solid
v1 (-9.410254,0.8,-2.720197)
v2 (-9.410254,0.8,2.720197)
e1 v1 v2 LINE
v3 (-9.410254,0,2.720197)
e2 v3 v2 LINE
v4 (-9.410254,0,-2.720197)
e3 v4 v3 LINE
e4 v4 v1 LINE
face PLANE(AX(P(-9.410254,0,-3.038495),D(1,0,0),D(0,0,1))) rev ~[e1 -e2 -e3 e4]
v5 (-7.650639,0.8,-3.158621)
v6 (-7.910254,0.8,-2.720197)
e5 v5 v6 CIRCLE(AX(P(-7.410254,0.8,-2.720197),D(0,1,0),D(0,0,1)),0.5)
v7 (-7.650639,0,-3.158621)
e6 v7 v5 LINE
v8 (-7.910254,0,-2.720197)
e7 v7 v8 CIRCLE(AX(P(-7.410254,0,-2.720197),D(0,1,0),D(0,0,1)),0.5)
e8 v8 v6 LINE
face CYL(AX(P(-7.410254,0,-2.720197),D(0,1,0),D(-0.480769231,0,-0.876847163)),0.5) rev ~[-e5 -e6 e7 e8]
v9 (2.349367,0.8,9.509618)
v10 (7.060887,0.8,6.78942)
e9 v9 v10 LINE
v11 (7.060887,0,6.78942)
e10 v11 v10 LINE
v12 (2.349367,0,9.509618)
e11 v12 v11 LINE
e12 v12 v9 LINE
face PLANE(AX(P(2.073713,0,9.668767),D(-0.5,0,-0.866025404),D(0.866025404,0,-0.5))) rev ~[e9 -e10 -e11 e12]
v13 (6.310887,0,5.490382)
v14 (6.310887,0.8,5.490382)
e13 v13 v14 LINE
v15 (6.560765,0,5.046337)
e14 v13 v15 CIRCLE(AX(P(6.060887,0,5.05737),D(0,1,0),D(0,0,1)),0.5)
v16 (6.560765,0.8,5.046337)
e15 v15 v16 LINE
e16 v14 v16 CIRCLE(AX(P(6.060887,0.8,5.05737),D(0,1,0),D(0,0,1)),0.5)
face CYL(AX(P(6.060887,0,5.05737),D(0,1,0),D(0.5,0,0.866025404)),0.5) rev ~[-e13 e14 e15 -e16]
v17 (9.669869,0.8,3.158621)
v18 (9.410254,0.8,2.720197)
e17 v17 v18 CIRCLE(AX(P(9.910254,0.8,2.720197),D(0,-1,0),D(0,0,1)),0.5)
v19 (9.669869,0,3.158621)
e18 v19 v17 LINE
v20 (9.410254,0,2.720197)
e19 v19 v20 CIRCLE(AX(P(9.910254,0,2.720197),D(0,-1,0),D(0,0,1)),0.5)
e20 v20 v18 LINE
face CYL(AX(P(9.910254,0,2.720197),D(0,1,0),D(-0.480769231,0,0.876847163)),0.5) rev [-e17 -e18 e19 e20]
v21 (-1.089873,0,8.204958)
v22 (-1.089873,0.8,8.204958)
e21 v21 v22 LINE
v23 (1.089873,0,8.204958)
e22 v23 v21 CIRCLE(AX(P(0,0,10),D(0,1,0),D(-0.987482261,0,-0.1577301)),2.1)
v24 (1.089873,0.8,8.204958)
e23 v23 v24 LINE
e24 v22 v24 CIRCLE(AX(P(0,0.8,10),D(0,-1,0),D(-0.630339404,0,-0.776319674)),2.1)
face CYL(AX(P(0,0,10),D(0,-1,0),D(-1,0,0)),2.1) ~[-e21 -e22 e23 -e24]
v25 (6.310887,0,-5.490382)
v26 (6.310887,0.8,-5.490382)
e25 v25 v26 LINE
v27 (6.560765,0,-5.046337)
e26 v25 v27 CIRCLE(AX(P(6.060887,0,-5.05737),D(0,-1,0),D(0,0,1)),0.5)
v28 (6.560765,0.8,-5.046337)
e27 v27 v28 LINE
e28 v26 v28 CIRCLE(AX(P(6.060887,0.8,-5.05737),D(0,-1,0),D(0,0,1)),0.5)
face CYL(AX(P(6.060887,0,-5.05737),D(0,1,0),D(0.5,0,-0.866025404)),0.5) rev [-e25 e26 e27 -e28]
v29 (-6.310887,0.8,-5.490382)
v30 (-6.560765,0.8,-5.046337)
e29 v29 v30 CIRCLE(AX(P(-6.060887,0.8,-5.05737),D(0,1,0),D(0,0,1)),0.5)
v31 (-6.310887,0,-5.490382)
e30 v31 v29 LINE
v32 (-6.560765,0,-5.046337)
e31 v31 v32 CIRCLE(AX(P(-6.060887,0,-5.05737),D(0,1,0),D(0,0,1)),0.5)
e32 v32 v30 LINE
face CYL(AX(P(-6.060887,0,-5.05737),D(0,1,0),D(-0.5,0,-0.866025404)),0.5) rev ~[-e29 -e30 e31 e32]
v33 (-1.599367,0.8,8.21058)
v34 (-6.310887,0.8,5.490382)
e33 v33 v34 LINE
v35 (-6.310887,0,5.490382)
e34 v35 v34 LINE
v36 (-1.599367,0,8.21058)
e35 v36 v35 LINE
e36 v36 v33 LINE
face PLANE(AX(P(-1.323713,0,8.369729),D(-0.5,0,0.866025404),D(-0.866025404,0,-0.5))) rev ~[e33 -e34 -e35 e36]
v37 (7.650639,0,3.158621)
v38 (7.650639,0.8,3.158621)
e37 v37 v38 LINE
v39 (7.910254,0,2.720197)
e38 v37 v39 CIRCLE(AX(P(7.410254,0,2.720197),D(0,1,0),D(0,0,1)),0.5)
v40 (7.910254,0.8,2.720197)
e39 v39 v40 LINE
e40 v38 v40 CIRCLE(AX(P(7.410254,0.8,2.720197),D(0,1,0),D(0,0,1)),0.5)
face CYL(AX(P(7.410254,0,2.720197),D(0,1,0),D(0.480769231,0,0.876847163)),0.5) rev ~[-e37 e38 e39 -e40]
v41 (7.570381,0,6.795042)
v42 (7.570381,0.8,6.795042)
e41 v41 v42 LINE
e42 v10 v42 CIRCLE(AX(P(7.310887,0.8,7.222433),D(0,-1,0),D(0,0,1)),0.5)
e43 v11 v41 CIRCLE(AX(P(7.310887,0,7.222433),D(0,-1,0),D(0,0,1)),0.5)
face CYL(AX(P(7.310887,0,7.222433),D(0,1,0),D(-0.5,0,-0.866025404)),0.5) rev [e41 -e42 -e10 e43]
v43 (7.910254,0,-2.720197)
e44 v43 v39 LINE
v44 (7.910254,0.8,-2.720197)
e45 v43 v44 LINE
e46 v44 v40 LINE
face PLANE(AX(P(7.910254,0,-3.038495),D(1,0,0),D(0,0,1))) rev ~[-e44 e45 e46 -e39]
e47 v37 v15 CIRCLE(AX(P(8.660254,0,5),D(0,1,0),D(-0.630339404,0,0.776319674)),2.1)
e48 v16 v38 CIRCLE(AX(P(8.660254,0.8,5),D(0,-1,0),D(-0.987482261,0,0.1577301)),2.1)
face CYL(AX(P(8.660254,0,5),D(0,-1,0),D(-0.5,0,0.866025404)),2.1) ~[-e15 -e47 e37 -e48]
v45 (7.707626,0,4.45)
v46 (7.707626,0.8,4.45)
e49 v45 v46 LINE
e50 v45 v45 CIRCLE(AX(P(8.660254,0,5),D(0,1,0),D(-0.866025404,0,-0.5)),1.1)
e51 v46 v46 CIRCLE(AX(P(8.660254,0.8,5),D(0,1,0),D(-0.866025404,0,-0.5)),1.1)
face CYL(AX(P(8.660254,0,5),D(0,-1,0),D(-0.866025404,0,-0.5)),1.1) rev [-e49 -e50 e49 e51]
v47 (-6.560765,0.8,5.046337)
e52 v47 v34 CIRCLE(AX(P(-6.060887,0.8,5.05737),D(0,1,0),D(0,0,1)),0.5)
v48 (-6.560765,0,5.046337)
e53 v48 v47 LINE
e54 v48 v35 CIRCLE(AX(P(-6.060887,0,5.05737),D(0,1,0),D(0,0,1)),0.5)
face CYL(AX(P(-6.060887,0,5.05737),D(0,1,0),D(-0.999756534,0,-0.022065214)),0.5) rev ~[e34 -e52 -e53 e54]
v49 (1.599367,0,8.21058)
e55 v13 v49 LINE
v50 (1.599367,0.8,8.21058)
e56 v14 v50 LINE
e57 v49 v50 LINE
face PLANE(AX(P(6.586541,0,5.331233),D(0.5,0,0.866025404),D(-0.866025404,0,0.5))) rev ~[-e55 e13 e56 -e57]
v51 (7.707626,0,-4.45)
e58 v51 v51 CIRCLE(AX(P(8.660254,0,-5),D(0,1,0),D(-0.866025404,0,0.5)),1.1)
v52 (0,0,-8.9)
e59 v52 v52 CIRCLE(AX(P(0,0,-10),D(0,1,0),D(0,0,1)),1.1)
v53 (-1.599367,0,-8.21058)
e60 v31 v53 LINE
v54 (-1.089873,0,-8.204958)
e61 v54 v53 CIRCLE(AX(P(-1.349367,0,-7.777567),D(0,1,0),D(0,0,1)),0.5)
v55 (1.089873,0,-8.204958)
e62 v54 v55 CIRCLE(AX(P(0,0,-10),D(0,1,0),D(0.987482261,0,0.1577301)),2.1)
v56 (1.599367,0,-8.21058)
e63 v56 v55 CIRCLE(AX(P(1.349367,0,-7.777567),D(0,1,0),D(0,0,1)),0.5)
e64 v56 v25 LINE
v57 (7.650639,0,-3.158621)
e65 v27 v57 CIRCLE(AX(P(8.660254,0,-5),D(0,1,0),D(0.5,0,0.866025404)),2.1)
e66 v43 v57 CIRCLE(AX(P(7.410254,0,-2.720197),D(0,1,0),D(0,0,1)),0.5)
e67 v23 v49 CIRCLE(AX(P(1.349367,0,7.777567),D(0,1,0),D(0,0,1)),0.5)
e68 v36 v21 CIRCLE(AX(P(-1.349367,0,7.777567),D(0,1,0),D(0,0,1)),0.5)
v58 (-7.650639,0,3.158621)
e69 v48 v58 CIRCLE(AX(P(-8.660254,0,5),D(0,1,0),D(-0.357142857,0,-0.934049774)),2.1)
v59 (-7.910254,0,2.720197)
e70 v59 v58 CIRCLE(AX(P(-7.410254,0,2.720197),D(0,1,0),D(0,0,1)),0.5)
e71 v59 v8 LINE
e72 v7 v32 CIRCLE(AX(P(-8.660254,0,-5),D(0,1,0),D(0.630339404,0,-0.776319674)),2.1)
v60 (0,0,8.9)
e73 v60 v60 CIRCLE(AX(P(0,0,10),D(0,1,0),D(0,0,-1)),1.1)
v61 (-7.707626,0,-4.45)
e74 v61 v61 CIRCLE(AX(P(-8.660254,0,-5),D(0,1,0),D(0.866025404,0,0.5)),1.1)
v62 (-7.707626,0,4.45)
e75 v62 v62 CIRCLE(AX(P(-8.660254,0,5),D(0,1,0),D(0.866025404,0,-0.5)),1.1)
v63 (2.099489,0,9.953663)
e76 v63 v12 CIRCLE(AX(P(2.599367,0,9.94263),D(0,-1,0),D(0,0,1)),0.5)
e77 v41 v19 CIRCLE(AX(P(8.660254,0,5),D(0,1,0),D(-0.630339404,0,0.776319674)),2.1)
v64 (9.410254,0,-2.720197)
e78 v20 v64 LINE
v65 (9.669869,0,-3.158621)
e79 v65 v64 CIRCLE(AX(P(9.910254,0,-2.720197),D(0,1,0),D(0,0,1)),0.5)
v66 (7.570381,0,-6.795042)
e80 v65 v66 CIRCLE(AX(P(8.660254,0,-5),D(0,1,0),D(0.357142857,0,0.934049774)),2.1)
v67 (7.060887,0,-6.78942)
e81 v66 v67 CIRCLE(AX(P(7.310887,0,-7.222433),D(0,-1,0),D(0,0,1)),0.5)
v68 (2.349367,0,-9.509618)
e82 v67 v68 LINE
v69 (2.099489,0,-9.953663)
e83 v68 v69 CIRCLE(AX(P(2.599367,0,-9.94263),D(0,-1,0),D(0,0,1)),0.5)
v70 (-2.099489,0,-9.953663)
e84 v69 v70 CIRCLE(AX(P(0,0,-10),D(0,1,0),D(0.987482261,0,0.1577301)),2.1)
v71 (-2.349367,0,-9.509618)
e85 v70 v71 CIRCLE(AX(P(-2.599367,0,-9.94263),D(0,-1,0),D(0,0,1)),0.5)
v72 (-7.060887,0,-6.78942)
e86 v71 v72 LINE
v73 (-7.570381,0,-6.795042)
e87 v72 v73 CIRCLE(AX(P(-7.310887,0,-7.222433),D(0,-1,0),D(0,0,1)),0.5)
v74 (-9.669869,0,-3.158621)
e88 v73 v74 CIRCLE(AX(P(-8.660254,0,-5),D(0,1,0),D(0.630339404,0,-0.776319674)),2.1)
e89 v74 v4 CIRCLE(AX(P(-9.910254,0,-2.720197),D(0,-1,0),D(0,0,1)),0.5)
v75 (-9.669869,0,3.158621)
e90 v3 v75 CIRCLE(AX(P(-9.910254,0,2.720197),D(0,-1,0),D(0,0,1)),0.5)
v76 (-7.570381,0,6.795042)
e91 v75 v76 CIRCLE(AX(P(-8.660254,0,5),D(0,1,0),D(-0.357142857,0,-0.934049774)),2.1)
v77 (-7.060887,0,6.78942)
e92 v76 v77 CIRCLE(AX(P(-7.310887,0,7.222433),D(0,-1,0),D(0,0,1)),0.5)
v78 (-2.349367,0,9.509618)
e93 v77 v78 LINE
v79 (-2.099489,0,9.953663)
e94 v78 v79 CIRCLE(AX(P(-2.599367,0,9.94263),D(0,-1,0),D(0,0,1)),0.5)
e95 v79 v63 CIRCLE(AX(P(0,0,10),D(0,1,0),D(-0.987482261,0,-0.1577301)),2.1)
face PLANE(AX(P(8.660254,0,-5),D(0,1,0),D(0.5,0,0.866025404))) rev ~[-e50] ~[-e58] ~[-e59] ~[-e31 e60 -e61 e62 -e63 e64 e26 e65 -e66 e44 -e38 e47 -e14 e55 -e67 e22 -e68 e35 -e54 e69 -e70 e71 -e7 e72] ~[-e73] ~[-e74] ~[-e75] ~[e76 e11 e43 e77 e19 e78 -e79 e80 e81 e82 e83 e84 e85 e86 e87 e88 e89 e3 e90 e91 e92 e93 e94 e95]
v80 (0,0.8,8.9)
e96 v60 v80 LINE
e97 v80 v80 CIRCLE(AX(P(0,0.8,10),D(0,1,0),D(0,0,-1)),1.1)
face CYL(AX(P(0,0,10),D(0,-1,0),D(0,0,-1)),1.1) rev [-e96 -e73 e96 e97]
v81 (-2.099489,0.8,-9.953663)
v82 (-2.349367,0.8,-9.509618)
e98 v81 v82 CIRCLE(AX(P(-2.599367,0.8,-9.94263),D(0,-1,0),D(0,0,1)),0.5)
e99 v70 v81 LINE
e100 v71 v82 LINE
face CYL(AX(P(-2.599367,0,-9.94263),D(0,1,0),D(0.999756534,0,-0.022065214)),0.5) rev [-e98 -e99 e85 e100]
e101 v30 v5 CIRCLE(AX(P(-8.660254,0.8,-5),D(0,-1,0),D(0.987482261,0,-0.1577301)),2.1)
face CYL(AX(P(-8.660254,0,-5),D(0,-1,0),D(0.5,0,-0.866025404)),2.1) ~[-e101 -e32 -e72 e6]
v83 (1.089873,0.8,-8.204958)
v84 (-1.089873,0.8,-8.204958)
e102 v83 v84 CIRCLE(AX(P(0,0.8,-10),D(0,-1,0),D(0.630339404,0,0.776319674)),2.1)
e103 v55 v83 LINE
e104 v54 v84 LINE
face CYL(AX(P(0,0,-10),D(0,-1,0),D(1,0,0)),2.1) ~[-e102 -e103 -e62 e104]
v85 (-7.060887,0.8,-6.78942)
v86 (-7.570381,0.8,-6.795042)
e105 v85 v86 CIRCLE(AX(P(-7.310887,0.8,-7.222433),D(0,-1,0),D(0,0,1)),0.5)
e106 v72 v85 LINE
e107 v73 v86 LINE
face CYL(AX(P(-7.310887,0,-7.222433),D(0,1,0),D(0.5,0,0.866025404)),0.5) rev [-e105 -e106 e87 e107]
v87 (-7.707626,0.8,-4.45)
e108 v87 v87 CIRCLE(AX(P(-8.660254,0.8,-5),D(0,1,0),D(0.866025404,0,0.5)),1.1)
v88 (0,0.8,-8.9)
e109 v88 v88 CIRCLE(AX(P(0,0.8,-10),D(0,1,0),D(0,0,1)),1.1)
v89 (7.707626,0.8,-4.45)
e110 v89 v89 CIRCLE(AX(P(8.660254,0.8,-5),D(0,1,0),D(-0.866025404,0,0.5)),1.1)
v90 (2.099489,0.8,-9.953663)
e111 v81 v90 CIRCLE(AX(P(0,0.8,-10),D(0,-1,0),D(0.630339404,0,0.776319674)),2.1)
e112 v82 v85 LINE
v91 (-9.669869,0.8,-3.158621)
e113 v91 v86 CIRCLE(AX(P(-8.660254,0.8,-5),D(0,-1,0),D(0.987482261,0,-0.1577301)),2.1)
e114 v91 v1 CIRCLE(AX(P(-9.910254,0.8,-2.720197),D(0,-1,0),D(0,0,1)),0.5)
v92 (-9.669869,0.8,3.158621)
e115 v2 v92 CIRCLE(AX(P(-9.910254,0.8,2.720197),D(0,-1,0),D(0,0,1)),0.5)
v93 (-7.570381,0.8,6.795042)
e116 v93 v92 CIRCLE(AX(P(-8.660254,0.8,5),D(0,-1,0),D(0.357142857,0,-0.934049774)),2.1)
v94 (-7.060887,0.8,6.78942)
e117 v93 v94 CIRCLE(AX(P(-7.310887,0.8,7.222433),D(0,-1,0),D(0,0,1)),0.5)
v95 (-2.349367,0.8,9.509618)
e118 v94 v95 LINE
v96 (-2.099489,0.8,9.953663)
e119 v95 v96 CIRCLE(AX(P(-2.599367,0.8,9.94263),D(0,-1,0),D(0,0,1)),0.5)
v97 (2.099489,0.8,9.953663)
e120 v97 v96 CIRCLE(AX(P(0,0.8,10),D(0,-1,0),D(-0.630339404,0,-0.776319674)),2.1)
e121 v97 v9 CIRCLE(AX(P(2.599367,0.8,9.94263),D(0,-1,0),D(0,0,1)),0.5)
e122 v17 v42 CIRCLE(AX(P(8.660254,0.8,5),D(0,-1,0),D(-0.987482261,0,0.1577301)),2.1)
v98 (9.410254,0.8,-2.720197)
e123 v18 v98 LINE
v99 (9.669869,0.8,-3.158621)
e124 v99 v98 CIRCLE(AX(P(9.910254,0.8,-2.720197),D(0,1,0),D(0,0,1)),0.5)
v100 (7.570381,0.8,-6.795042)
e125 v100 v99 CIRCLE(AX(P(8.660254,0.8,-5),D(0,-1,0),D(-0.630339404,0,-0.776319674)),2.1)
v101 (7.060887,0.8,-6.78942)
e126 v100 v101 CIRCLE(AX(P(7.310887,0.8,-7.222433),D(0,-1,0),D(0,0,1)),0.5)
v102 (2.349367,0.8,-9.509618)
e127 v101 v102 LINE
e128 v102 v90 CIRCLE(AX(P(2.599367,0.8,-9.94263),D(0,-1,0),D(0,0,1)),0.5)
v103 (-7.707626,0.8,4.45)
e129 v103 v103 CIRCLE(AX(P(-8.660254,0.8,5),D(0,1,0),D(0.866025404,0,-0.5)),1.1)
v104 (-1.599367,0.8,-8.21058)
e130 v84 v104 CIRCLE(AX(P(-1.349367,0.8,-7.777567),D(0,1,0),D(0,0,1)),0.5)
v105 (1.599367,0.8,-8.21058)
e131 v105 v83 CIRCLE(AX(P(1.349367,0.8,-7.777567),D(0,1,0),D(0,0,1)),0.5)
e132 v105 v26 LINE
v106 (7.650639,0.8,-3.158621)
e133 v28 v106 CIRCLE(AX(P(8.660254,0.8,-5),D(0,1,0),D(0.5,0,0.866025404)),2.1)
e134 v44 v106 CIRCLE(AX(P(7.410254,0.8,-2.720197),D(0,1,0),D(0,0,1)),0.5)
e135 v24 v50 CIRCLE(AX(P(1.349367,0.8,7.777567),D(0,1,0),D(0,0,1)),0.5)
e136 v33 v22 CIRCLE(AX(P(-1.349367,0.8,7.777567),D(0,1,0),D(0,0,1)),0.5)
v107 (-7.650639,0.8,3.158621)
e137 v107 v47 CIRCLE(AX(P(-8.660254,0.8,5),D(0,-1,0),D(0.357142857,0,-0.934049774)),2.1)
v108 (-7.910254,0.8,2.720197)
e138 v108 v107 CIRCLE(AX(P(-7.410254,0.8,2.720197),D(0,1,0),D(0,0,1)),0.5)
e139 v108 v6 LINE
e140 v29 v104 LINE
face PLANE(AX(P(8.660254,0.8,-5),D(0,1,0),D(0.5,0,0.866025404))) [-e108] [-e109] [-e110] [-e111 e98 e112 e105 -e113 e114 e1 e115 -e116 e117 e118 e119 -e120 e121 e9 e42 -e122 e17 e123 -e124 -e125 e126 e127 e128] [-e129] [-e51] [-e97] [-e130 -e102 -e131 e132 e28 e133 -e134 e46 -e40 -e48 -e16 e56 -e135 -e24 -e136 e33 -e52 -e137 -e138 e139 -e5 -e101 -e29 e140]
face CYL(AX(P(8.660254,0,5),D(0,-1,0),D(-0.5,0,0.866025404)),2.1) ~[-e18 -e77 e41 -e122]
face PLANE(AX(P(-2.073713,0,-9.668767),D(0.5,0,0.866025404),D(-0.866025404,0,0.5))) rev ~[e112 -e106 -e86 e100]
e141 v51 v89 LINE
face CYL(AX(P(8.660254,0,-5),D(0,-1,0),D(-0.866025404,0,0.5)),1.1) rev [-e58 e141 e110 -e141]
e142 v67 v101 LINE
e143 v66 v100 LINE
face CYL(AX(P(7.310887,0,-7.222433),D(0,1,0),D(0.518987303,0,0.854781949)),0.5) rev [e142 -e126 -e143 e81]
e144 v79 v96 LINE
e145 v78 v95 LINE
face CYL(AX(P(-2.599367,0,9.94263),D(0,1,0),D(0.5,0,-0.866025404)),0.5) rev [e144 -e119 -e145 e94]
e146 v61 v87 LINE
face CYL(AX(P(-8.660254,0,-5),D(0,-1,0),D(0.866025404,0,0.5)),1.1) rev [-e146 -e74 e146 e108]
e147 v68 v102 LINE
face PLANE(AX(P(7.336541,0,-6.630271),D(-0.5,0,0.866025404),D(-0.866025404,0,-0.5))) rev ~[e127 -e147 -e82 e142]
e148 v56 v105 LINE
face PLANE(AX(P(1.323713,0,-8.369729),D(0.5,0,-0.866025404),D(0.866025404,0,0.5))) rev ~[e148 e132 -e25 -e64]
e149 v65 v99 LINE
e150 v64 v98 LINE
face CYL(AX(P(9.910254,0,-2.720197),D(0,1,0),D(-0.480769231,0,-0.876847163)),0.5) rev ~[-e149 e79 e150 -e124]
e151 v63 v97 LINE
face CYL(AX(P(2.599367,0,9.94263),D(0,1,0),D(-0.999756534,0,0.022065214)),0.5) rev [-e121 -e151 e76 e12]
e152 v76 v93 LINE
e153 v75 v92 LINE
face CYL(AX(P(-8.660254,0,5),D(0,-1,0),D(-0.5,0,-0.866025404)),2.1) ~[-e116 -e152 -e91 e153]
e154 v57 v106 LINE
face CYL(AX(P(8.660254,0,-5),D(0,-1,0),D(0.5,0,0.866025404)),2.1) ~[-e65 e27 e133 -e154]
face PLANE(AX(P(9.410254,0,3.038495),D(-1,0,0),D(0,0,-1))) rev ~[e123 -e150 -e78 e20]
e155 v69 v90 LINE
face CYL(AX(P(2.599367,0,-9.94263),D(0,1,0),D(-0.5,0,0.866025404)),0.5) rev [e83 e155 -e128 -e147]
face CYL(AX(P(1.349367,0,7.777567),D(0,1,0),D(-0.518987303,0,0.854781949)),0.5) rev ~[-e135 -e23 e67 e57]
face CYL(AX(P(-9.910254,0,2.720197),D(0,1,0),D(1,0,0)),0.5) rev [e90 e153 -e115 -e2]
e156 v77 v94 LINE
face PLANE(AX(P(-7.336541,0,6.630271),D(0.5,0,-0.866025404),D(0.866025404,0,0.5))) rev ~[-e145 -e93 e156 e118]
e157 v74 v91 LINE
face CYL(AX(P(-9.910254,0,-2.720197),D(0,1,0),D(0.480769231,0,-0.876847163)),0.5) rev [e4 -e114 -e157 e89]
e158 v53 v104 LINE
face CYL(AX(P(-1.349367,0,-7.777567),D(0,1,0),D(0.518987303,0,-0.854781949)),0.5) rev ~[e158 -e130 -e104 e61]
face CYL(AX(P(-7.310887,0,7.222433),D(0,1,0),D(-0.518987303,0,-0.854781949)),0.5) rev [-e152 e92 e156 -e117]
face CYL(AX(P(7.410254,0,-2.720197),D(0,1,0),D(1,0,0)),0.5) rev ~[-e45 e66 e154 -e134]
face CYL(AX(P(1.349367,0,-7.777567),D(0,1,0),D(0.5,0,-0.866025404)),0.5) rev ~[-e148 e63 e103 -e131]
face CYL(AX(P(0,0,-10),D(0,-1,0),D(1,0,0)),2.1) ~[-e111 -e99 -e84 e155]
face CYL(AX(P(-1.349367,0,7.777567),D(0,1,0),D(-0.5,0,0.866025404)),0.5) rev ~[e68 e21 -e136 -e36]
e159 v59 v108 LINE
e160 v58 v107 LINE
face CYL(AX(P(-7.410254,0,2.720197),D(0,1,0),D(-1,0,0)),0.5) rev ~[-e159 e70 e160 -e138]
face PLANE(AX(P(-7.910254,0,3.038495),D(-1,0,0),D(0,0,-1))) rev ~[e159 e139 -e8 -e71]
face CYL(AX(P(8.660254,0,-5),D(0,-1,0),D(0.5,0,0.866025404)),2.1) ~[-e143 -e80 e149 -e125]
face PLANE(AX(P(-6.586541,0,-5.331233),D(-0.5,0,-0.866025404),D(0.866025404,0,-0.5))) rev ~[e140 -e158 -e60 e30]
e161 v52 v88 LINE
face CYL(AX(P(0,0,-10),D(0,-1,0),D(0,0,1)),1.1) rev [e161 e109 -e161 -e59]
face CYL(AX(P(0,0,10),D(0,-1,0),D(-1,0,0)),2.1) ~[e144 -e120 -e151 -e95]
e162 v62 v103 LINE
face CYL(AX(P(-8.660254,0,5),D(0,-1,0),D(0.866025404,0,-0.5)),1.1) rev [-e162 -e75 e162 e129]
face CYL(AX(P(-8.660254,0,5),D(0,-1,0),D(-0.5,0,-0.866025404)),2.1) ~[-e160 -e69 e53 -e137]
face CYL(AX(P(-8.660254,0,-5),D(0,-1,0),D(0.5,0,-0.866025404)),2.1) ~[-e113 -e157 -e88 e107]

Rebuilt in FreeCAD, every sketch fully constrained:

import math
import FreeCAD as App
import Part
import Sketcher
Q = App.Units.Quantity


def edges_at(feature, points):
    """Names of the edges that pass closest to the given points."""
    edges = feature.Shape.Edges
    near = lambda p: min(range(len(edges)), key=lambda i: edges[i].distToShape(Part.Vertex(*p))[0])
    return sorted({f"Edge{near(p) + 1}" for p in points})

doc = App.newDocument("Part")
body = doc.addObject("PartDesign::Body", "Body")

sketch1 = body.newObject("Sketcher::SketchObject", "Sketch")
sketch1.AttachmentSupport = (doc.getObject("XZ_Plane"), [""])
sketch1.MapMode = "FlatFace"
sketch1.addGeometry([
    Part.LineSegment(App.Vector(1.323713, -8.369729, 0), App.Vector(6.586541, -5.331233, 0)),
    Part.ArcOfCircle(Part.Circle(App.Vector(8.660254, -5, 0), App.Vector(0, 0, 1), 2.1), math.radians(-170.924832), math.radians(-129.075168)),
    Part.LineSegment(App.Vector(7.336541, -6.630271, 0), App.Vector(2.073713, -9.668767, 0)),
    Part.ArcOfCircle(Part.Circle(App.Vector(0, -10, 0), App.Vector(0, 0, 1), 2.1), math.radians(50.924832), math.radians(369.075168)),
    Part.Circle(App.Vector(0, -10, 0), App.Vector(0, 0, 1), 1.1),
], False)
sketch1.addConstraint([
    Sketcher.Constraint("Coincident", 0, 2, 1, 1),
    Sketcher.Constraint("Coincident", 1, 2, 2, 1),
    Sketcher.Constraint("Coincident", 2, 2, 3, 2),
    Sketcher.Constraint("Coincident", 3, 1, 0, 1),
    Sketcher.Constraint("Coincident", 4, 3, 3, 3),
    Sketcher.Constraint("Equal", 1, 3),
    Sketcher.Constraint("PointOnObject", 3, 3, -2),
    Sketcher.Constraint("Parallel", 0, 2),
    Sketcher.Constraint("Equal", 0, 2),
    Sketcher.Constraint("Diameter", 4, Q("2.2 mm")),
    Sketcher.Constraint("Radius", 1, Q("2.1 mm")),
    Sketcher.Constraint("Angle", 0, Q("30 deg")),
    Sketcher.Constraint("DistanceY", 1, 3, -1, 1, Q("5 mm")),
    Sketcher.Constraint("DistanceY", 3, 3, -1, 1, Q("10 mm")),
    Sketcher.Constraint("DistanceX", 0, 2, 1, 2, Q("0.75 mm")),
    Sketcher.Constraint("Distance", 0, Q("6.076991 mm")),
])
pad1 = body.newObject("PartDesign::Pad", "Pad")
pad1.Profile = sketch1
pad1.Length = 0.8
pad1.Reversed = True
doc.recompute()

polarpattern = body.newObject("PartDesign::PolarPattern", "PolarPattern")
polarpattern.Originals = [pad1]
polarpattern.Axis = (doc.getObject("Y_Axis"), [""])
polarpattern.Angle = 360
polarpattern.Occurrences = 6
body.Tip = polarpattern
doc.recompute()

fillet = body.newObject("PartDesign::Fillet", "Fillet")
fillet.Base = (polarpattern, edges_at(polarpattern, [
    (2.074, 0.4, -9.669),
    (7.337, 0.4, -6.63),
    (6.587, 0.4, -5.331),
    (1.324, 0.4, -8.37),
    (9.41, 0.4, -3.038),
    (7.91, 0.4, -3.038),
    (9.41, 0.4, 3.038),
    (7.91, 0.4, 3.038),
    (7.337, 0.4, 6.63),
    (6.587, 0.4, 5.331),
    (2.074, 0.4, 9.669),
    (1.324, 0.4, 8.37),
    (-2.074, 0.4, 9.669),
    (-1.324, 0.4, 8.37),
    (-7.337, 0.4, 6.63),
    (-6.587, 0.4, 5.331),
    (-9.41, 0.4, 3.038),
    (-7.91, 0.4, 3.038),
    (-9.41, 0.4, -3.038),
    (-7.91, 0.4, -3.038),
    (-7.337, 0.4, -6.63),
    (-6.587, 0.4, -5.331),
    (-1.324, 0.4, -8.37),
    (-2.074, 0.4, -9.669),
]))
fillet.Radius = 0.5

doc.recompute()
